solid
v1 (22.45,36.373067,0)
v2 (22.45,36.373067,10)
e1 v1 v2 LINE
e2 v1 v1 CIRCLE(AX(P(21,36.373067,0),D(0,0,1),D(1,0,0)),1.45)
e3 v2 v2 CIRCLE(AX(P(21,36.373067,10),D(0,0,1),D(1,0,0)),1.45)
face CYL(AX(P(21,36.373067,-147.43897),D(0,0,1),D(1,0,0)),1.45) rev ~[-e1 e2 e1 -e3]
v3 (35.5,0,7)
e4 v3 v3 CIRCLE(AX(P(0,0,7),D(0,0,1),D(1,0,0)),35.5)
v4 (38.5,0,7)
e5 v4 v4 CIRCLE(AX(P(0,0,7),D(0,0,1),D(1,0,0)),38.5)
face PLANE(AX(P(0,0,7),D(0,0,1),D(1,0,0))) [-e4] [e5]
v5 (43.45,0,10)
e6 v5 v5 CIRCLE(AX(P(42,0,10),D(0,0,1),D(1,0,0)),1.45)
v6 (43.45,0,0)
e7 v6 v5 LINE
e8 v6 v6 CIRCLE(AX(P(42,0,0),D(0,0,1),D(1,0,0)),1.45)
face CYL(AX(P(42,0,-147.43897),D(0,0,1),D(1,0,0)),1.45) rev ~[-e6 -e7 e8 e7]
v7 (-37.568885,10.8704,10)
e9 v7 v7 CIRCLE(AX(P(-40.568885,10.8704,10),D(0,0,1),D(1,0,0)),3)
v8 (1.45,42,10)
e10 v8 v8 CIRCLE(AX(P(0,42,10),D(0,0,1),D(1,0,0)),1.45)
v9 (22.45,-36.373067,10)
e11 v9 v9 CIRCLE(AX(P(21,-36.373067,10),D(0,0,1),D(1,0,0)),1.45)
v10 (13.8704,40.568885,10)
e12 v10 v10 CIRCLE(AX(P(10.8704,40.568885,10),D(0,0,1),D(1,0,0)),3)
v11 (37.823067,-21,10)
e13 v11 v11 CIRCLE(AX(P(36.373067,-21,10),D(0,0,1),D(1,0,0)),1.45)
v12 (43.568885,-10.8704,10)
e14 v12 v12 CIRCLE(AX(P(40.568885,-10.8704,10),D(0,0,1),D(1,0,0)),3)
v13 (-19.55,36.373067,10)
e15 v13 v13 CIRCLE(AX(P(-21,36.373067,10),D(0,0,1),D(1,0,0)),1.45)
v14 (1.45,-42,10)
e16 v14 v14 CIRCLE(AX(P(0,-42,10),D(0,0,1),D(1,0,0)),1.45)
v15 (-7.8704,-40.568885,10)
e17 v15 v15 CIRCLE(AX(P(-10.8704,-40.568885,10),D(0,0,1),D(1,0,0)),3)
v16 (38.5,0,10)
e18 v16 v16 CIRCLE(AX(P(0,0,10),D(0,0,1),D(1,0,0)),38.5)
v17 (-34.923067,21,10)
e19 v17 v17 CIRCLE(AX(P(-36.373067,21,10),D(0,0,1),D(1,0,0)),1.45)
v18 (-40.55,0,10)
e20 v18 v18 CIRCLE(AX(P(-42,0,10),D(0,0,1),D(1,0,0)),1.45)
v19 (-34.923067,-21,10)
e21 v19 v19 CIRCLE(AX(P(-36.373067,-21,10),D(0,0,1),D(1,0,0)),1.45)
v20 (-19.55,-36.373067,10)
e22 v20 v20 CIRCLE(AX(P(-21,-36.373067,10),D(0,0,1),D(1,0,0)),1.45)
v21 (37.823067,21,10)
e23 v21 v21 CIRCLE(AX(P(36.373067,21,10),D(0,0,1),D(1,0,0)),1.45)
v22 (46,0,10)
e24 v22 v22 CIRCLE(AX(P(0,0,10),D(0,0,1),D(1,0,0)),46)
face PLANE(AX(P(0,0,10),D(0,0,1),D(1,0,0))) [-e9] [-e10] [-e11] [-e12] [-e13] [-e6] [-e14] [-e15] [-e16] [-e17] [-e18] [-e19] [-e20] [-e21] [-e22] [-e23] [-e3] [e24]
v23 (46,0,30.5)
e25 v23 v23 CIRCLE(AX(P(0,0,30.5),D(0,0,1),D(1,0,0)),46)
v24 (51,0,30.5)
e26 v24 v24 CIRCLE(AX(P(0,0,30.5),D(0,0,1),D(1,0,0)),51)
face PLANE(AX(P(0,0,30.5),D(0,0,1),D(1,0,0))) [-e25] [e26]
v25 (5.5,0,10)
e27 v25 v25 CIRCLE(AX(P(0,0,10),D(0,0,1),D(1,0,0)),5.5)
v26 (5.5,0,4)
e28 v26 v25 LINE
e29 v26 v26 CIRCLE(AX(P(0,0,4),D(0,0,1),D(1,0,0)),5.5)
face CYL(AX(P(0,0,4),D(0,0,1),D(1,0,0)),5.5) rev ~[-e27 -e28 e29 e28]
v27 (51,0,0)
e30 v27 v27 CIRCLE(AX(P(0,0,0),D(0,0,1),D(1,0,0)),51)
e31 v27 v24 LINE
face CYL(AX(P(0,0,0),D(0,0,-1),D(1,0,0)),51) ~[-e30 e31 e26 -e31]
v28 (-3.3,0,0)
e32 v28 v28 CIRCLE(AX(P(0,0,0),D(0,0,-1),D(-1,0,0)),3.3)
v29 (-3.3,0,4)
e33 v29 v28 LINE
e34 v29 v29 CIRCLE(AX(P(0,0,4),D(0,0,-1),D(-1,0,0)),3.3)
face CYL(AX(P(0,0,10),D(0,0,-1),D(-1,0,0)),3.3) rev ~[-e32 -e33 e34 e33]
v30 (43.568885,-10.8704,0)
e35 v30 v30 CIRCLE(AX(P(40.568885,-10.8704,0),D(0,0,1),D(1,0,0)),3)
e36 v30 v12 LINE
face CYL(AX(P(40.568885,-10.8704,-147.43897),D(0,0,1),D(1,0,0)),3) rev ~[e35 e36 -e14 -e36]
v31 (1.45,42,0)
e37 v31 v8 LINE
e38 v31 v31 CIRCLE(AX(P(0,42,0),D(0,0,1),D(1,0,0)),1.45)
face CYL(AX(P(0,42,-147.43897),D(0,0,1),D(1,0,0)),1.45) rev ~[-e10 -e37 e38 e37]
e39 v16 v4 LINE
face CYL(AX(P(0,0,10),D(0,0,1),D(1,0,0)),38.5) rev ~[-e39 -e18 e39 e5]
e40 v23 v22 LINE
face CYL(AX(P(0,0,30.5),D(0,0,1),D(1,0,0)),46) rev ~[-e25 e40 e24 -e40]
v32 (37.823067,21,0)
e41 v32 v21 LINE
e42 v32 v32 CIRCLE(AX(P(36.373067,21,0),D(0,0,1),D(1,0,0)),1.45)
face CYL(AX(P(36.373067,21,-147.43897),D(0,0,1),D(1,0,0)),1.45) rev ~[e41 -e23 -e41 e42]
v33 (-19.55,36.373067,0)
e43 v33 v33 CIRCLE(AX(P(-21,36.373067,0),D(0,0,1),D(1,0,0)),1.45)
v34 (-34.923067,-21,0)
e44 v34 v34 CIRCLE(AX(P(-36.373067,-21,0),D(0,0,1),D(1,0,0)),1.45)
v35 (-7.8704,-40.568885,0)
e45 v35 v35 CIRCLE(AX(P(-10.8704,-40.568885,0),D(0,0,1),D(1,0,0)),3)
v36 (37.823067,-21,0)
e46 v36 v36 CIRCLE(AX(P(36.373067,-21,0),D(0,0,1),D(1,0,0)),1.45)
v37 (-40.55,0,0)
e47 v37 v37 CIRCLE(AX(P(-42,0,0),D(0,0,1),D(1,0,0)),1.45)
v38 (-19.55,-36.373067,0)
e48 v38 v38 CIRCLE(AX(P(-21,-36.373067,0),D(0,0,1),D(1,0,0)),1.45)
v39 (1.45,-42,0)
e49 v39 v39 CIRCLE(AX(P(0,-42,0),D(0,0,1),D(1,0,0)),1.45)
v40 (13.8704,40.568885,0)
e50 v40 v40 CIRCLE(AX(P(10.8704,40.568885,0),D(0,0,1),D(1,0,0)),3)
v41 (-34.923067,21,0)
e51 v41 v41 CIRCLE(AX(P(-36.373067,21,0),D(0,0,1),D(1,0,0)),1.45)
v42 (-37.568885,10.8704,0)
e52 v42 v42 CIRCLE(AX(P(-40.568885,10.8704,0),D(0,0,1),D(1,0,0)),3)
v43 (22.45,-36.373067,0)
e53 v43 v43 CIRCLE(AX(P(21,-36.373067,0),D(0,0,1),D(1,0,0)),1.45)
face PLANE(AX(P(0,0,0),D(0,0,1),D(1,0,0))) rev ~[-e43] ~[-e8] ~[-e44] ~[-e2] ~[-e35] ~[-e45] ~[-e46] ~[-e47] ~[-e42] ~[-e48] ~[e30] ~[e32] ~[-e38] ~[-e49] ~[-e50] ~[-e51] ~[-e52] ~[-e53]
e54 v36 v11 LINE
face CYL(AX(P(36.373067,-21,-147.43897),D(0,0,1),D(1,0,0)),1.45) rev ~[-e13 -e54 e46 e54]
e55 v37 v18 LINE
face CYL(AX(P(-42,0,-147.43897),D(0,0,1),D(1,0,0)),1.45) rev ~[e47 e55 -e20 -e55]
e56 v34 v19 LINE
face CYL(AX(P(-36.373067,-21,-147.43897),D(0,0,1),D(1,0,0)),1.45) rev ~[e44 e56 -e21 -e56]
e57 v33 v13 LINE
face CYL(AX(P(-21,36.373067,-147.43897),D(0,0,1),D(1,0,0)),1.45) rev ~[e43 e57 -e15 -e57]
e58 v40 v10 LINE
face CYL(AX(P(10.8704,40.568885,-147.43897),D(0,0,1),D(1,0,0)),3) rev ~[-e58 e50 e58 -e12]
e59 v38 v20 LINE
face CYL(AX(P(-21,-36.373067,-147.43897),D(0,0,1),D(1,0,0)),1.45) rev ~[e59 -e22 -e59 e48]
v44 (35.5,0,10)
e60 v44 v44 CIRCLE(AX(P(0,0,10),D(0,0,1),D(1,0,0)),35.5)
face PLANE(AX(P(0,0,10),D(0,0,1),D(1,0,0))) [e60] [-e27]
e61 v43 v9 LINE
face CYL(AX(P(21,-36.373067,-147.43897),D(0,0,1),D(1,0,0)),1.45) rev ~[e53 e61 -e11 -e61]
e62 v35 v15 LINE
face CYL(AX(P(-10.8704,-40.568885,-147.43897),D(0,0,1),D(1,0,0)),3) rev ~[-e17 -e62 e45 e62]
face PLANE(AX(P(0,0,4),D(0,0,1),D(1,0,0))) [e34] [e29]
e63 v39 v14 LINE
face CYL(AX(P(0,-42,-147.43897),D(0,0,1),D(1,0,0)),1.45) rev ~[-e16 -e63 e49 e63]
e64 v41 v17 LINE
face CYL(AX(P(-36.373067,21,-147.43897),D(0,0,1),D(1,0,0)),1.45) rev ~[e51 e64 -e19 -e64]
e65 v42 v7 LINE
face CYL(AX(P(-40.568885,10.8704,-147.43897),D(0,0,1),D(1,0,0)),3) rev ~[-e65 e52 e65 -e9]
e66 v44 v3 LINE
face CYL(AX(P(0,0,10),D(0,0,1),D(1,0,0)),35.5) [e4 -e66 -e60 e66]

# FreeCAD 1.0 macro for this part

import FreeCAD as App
import Part
import Sketcher
Q = App.Units.Quantity

doc = App.newDocument("Part")
body = doc.addObject("PartDesign::Body", "Body")

# Sketch on XY plane
sketch1 = body.newObject("Sketcher::SketchObject", "Sketch")
sketch1.AttachmentSupport = (doc.getObject("XY_Plane"), [""])
sketch1.MapMode = "FlatFace"
sketch1.addGeometry(Part.Circle(App.Vector(0, 0, 0), App.Vector(0, 0, 1), 51), False)
sketch1.addConstraint(Sketcher.Constraint("Coincident", 0, 3, -1, 1))
sketch1.addConstraint(Sketcher.Constraint("Diameter", 0, Q("102 mm")))
pad1 = body.newObject("PartDesign::Pad", "Pad")
pad1.Profile = sketch1
pad1.Length = 30.5

# Sketch on XY plane
sketch2 = body.newObject("Sketcher::SketchObject", "Sketch001")
sketch2.AttachmentSupport = (doc.getObject("XY_Plane"), [""])
sketch2.MapMode = "FlatFace"
sketch2.AttachmentOffset = App.Placement(App.Vector(0, 0, 30.5), App.Rotation())
sketch2.addGeometry(Part.Circle(App.Vector(0, 0, 0), App.Vector(0, 0, 1), 46), False)
sketch2.addConstraint(Sketcher.Constraint("Coincident", 0, 3, -1, 1))
sketch2.addConstraint(Sketcher.Constraint("Diameter", 0, Q("92 mm")))
pocket1 = body.newObject("PartDesign::Pocket", "Pocket")
pocket1.Profile = sketch2
pocket1.Length = 20.5

# Sketch on XY plane
sketch3 = body.newObject("Sketcher::SketchObject", "Sketch002")
sketch3.AttachmentSupport = (doc.getObject("XY_Plane"), [""])
sketch3.MapMode = "FlatFace"
sketch3.addGeometry(Part.Circle(App.Vector(-21, 36.4, 0), App.Vector(0, 0, 1), 1.4), False)
sketch3.addGeometry(Part.Circle(App.Vector(-36.4, 21, 0), App.Vector(0, 0, 1), 1.4), False)
sketch3.addGeometry(Part.Circle(App.Vector(-42, 0, 0), App.Vector(0, 0, 1), 1.4), False)
sketch3.addGeometry(Part.Circle(App.Vector(-36.4, -21, 0), App.Vector(0, 0, 1), 1.4), False)
sketch3.addGeometry(Part.Circle(App.Vector(-21, -36.4, 0), App.Vector(0, 0, 1), 1.4), False)
sketch3.addGeometry(Part.Circle(App.Vector(0, -42, 0), App.Vector(0, 0, 1), 1.4), False)
sketch3.addGeometry(Part.Circle(App.Vector(21, -36.4, 0), App.Vector(0, 0, 1), 1.4), False)
sketch3.addGeometry(Part.Circle(App.Vector(36.4, -21, 0), App.Vector(0, 0, 1), 1.4), False)
sketch3.addGeometry(Part.Circle(App.Vector(42, 0, 0), App.Vector(0, 0, 1), 1.4), False)
sketch3.addGeometry(Part.Circle(App.Vector(36.4, 21, 0), App.Vector(0, 0, 1), 1.4), False)
sketch3.addGeometry(Part.Circle(App.Vector(21, 36.4, 0), App.Vector(0, 0, 1), 1.4), False)
sketch3.addGeometry(Part.Circle(App.Vector(0, 42, 0), App.Vector(0, 0, 1), 1.4), False)
sketch3.addConstraint(Sketcher.Constraint("Equal", 0, 1))
sketch3.addConstraint(Sketcher.Constraint("Equal", 1, 2))
sketch3.addConstraint(Sketcher.Constraint("Equal", 2, 3))
sketch3.addConstraint(Sketcher.Constraint("Equal", 3, 4))
sketch3.addConstraint(Sketcher.Constraint("Equal", 4, 5))
sketch3.addConstraint(Sketcher.Constraint("Equal", 5, 6))
sketch3.addConstraint(Sketcher.Constraint("Equal", 6, 7))
sketch3.addConstraint(Sketcher.Constraint("Equal", 7, 8))
sketch3.addConstraint(Sketcher.Constraint("Equal", 8, 9))
sketch3.addConstraint(Sketcher.Constraint("Equal", 9, 10))
sketch3.addConstraint(Sketcher.Constraint("Equal", 10, 11))
sketch3.addConstraint(Sketcher.Constraint("Symmetric", 0, 3, 6, 3, -1, 1))
sketch3.addConstraint(Sketcher.Constraint("Symmetric", 1, 3, 7, 3, -1, 1))
sketch3.addConstraint(Sketcher.Constraint("Symmetric", 2, 3, 8, 3, -1, 1))
sketch3.addConstraint(Sketcher.Constraint("Symmetric", 3, 3, 9, 3, -1, 1))
sketch3.addConstraint(Sketcher.Constraint("Symmetric", 4, 3, 10, 3, -1, 1))
sketch3.addConstraint(Sketcher.Constraint("Symmetric", 5, 3, 11, 3, -1, 1))
sketch3.addConstraint(Sketcher.Constraint("Symmetric", 4, 3, 6, 3, -2))
sketch3.addConstraint(Sketcher.Constraint("Symmetric", 3, 3, 7, 3, -2))
sketch3.addConstraint(Sketcher.Constraint("PointOnObject", 2, 3, -1))
sketch3.addConstraint(Sketcher.Constraint("PointOnObject", 5, 3, -2))
sketch3.addConstraint(Sketcher.Constraint("Diameter", 0, Q("2.9 mm")))
sketch3.addConstraint(Sketcher.Constraint("DistanceX", 0, 3, -1, 1, Q("21 mm")))
sketch3.addConstraint(Sketcher.Constraint("DistanceY", -1, 1, 1, 3, Q("21 mm")))
sketch3.addConstraint(Sketcher.Constraint("DistanceX", 2, 3, -1, 1, Q("42 mm")))
sketch3.addConstraint(Sketcher.Constraint("DistanceY", 5, 3, -1, 1, Q("42 mm")))
sketch3.addConstraint(Sketcher.Constraint("DistanceY", -1, 1, 0, 3, Q("36.373067 mm")))
sketch3.addConstraint(Sketcher.Constraint("DistanceX", 1, 3, -1, 1, Q("36.373067 mm")))
doc.recompute()
hole = body.newObject("PartDesign::Hole", "Hole")
hole.Profile = sketch3
hole.ThreadType = "None"
hole.Diameter = 2.9
hole.DepthType = "ThroughAll"
hole.Reversed = True

# Sketch on XY plane
sketch4 = body.newObject("Sketcher::SketchObject", "Sketch003")
sketch4.AttachmentSupport = (doc.getObject("XY_Plane"), [""])
sketch4.MapMode = "FlatFace"
sketch4.addGeometry(Part.Circle(App.Vector(10.9, 40.6, 0), App.Vector(0, 0, 1), 3), False)
sketch4.addGeometry(Part.Circle(App.Vector(-40.6, 10.9, 0), App.Vector(0, 0, 1), 3), False)
sketch4.addGeometry(Part.Circle(App.Vector(-10.9, -40.6, 0), App.Vector(0, 0, 1), 3), False)
sketch4.addGeometry(Part.Circle(App.Vector(40.6, -10.9, 0), App.Vector(0, 0, 1), 3), False)
sketch4.addConstraint(Sketcher.Constraint("Equal", 0, 1))
sketch4.addConstraint(Sketcher.Constraint("Equal", 1, 2))
sketch4.addConstraint(Sketcher.Constraint("Equal", 2, 3))
sketch4.addConstraint(Sketcher.Constraint("Symmetric", 0, 3, 2, 3, -1, 1))
sketch4.addConstraint(Sketcher.Constraint("Symmetric", 1, 3, 3, 3, -1, 1))
sketch4.addConstraint(Sketcher.Constraint("Diameter", 0, Q("6 mm")))
sketch4.addConstraint(Sketcher.Constraint("DistanceX", -1, 1, 0, 3, Q("10.8704 mm")))
sketch4.addConstraint(Sketcher.Constraint("DistanceY", -1, 1, 1, 3, Q("10.8704 mm")))
sketch4.addConstraint(Sketcher.Constraint("DistanceY", 2, 3, 0, 3, Q("81.137769 mm")))
sketch4.addConstraint(Sketcher.Constraint("DistanceX", 1, 3, 3, 3, Q("81.137769 mm")))
doc.recompute()
hole2 = body.newObject("PartDesign::Hole", "Hole001")
hole2.Profile = sketch4
hole2.ThreadType = "None"
hole2.Diameter = 6
hole2.DepthType = "ThroughAll"
hole2.Reversed = True

# Sketch on XY plane
sketch5 = body.newObject("Sketcher::SketchObject", "Sketch004")
sketch5.AttachmentSupport = (doc.getObject("XY_Plane"), [""])
sketch5.MapMode = "FlatFace"
sketch5.AttachmentOffset = App.Placement(App.Vector(0, 0, 10), App.Rotation())
sketch5.addGeometry(Part.Circle(App.Vector(0, 0, 0), App.Vector(0, 0, 1), 38), False)
sketch5.addGeometry(Part.Circle(App.Vector(0, 0, 0), App.Vector(0, 0, 1), 36), False)
sketch5.addConstraint(Sketcher.Constraint("Coincident", 0, 3, -1, 1))
sketch5.addConstraint(Sketcher.Constraint("Coincident", 1, 3, -1, 1))
sketch5.addConstraint(Sketcher.Constraint("Diameter", 0, Q("77 mm")))
sketch5.addConstraint(Sketcher.Constraint("Diameter", 1, Q("71 mm")))
pocket2 = body.newObject("PartDesign::Pocket", "Pocket001")
pocket2.Profile = sketch5
pocket2.Length = 3

# Sketch on XY plane
sketch6 = body.newObject("Sketcher::SketchObject", "Sketch005")
sketch6.AttachmentSupport = (doc.getObject("XY_Plane"), [""])
sketch6.MapMode = "FlatFace"
sketch6.AttachmentOffset = App.Placement(App.Vector(0, 0, 10), App.Rotation())
sketch6.addGeometry(Part.Circle(App.Vector(0, 0, 0), App.Vector(0, 0, 1), 3.3), False)
sketch6.addConstraint(Sketcher.Constraint("Coincident", 0, 3, -1, 1))
sketch6.addConstraint(Sketcher.Constraint("Diameter", 0, Q("6.6 mm")))
doc.recompute()
hole3 = body.newObject("PartDesign::Hole", "Hole002")
hole3.Profile = sketch6
hole3.ThreadType = "None"
hole3.Diameter = 6.6
hole3.DepthType = "ThroughAll"
hole3.HoleCutType = "Counterbore"
hole3.HoleCutDiameter = 11
hole3.HoleCutDepth = 6

doc.recompute()
